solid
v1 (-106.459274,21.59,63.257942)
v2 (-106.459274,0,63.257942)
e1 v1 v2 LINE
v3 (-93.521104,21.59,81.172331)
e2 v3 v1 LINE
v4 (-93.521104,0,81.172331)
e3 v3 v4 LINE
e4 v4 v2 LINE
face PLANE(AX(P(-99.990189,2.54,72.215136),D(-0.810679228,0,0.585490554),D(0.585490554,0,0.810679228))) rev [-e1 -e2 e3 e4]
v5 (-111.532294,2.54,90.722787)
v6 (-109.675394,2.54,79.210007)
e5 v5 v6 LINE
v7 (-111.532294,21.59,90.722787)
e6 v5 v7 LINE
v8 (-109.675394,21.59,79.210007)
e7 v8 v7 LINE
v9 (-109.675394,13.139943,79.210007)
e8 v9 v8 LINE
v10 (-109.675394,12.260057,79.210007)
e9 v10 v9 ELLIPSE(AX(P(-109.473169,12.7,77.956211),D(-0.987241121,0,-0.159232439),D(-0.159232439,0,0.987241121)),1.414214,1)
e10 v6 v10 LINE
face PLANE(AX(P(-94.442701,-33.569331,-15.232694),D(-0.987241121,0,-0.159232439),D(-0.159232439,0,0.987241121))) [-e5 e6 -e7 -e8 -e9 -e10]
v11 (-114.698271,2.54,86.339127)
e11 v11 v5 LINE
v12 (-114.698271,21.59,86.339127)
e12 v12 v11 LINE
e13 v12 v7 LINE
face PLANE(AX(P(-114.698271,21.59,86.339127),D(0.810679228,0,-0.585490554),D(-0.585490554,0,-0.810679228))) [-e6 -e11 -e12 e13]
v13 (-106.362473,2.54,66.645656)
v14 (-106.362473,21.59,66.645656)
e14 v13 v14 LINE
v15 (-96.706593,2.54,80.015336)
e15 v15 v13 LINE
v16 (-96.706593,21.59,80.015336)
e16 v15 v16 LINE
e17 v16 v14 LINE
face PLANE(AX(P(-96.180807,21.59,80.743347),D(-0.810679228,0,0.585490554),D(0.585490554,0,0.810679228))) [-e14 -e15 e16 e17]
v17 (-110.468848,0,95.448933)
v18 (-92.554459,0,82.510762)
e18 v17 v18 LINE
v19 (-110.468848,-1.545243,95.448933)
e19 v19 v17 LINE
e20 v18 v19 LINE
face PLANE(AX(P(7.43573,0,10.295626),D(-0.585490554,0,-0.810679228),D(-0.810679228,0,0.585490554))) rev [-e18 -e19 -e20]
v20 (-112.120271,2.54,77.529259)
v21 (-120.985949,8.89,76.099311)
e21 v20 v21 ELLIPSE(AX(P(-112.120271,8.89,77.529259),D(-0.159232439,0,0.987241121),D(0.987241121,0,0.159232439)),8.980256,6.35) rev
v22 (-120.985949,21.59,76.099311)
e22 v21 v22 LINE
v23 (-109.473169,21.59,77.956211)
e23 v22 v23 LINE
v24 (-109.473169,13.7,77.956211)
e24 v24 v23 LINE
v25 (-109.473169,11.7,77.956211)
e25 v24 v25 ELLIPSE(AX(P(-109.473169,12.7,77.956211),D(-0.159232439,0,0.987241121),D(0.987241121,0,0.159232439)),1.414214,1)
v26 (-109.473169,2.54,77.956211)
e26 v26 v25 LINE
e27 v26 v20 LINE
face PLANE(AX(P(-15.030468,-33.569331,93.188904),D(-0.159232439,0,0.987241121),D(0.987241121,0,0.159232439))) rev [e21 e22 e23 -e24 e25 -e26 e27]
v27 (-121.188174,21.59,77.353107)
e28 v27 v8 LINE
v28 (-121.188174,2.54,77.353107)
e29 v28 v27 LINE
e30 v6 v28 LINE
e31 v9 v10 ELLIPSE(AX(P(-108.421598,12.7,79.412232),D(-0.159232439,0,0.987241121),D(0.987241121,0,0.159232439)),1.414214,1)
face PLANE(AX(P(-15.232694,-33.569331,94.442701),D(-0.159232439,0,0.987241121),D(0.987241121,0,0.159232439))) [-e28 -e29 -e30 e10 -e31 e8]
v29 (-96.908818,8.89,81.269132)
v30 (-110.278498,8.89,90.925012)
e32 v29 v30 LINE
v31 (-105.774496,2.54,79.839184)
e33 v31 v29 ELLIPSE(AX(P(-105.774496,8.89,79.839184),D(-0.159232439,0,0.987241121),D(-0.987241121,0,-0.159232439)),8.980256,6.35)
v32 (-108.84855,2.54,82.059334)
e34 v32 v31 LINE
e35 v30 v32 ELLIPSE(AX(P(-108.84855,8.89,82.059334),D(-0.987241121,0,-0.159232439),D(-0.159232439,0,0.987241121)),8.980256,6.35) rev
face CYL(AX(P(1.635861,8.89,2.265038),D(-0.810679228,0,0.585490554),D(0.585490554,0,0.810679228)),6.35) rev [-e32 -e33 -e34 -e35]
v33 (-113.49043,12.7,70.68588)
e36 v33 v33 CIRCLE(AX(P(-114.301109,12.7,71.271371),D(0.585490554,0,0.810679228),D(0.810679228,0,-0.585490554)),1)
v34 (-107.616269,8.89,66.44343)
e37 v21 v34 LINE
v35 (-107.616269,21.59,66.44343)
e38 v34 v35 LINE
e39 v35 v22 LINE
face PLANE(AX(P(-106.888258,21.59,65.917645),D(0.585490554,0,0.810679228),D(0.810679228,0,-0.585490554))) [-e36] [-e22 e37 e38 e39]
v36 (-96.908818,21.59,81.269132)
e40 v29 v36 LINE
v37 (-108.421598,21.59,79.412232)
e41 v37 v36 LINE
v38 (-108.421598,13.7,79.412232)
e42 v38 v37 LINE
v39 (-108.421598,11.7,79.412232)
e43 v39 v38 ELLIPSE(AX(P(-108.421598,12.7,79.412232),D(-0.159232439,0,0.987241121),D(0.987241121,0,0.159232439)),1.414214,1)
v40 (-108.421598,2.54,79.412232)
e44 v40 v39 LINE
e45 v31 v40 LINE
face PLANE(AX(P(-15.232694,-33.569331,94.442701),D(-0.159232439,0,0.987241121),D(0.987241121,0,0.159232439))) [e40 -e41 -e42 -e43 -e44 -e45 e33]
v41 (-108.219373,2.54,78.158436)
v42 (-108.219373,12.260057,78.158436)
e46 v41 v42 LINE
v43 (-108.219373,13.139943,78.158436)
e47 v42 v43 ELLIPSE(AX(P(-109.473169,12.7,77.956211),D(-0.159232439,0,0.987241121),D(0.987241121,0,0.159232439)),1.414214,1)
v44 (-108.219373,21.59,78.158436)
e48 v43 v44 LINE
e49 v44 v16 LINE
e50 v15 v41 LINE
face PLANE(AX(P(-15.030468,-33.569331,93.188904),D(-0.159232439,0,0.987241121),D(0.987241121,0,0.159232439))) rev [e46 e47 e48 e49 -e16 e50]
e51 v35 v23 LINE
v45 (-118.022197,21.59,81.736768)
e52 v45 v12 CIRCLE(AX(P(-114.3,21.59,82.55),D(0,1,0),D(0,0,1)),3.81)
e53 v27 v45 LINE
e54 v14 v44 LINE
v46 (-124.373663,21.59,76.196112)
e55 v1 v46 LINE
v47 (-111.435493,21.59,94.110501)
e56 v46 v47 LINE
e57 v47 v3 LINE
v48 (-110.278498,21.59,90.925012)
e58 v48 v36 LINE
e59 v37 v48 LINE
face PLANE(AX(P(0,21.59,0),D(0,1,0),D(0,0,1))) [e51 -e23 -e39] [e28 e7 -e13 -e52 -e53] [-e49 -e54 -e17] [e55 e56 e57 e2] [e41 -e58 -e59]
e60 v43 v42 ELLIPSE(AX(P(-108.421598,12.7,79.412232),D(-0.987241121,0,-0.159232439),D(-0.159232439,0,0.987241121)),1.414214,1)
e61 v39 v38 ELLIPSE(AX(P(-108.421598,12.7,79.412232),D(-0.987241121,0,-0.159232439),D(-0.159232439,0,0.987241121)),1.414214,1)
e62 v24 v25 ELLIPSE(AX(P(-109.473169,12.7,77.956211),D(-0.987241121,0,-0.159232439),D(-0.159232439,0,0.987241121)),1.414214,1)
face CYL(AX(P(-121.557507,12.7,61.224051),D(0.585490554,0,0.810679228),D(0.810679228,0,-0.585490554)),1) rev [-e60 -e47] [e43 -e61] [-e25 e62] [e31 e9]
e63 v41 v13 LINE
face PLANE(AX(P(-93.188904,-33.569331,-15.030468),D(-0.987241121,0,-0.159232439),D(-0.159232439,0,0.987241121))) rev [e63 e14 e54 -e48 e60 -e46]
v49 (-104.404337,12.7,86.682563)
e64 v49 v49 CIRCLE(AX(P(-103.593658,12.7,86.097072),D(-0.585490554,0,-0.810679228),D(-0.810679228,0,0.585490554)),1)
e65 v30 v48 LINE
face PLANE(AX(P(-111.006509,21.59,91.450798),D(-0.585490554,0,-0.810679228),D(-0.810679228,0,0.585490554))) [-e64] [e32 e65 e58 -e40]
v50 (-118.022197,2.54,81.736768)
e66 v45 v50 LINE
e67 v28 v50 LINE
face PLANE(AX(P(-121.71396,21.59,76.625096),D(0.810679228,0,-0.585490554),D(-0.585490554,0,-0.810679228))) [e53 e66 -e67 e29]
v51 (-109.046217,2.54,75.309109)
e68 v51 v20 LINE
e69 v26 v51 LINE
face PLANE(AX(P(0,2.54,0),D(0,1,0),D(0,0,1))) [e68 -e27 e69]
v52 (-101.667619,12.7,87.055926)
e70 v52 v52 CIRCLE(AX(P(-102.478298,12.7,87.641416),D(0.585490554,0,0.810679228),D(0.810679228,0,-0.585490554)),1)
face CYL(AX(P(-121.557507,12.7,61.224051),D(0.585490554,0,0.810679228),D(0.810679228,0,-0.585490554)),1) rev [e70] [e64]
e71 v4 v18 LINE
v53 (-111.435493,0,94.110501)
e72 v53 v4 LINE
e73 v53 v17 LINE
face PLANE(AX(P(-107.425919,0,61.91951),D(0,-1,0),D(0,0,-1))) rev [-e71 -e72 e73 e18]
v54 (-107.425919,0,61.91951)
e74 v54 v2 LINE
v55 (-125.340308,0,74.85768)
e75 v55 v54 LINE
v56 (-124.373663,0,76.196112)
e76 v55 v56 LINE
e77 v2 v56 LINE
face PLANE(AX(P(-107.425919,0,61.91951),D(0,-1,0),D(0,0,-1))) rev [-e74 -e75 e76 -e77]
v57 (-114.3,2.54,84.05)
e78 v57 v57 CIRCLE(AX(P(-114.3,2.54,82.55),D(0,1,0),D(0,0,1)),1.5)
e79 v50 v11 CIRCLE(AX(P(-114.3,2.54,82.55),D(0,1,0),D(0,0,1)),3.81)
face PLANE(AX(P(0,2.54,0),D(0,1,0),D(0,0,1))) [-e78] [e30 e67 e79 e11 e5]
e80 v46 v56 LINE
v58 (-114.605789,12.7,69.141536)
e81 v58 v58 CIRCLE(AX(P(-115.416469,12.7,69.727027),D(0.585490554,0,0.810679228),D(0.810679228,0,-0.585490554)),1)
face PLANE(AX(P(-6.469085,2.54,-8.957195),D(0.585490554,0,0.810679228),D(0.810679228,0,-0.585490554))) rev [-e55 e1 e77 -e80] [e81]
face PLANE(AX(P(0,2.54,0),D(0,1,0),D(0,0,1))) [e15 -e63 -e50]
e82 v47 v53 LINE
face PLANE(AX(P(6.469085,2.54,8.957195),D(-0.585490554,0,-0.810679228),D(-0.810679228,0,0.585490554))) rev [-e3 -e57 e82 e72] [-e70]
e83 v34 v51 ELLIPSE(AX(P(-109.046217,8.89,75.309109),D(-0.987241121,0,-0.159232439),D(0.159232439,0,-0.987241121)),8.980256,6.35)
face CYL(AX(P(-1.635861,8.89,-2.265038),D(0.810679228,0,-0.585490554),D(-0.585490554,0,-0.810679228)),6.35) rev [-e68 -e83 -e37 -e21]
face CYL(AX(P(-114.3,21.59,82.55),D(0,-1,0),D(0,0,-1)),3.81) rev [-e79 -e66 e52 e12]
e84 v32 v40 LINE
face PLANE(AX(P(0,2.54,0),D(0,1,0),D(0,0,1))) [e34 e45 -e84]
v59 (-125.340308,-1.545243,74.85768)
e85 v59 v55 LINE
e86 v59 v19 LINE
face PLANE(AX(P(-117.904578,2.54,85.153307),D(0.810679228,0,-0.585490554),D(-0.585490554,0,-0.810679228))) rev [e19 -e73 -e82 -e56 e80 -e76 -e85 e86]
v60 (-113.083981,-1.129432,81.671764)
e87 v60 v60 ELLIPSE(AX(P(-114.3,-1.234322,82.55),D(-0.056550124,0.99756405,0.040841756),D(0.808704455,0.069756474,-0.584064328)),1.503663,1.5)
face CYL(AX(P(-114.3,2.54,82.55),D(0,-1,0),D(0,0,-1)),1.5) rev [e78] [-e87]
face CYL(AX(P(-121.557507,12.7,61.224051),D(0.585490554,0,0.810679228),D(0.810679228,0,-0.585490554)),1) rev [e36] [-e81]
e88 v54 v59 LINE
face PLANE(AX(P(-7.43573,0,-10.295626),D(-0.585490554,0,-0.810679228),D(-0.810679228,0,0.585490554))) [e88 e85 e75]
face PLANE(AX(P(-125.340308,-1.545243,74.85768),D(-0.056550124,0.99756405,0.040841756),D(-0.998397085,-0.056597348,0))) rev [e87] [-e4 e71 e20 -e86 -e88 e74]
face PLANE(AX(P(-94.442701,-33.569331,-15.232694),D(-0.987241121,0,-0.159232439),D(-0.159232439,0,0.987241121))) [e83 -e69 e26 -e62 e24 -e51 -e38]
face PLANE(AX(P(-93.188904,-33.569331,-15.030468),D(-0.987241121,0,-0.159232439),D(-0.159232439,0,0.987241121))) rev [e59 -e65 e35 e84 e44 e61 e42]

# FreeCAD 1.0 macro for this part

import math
import FreeCAD as App
import Part
import Sketcher
Q = App.Units.Quantity


def edges_at(feature, points):
    """Names of the edges that pass closest to the given points."""
    edges = feature.Shape.Edges
    near = lambda p: min(range(len(edges)), key=lambda i: edges[i].distToShape(Part.Vertex(*p))[0])
    return sorted({f"Edge{near(p) + 1}" for p in points})

doc = App.newDocument("Part")
body = doc.addObject("PartDesign::Body", "Body")

# Sketch on XZ plane
sketch1 = body.newObject("Sketcher::SketchObject", "Sketch")
sketch1.AttachmentSupport = (doc.getObject("XZ_Plane"), [""])
sketch1.MapMode = "FlatFace"
sketch1.addGeometry(Part.LineSegment(App.Vector(-93.5, 81.2, 0), App.Vector(-106.5, 63.3, 0)), False)
sketch1.addGeometry(Part.LineSegment(App.Vector(-106.5, 63.3, 0), App.Vector(-124.4, 76.2, 0)), False)
sketch1.addGeometry(Part.LineSegment(App.Vector(-124.4, 76.2, 0), App.Vector(-111.4, 94.1, 0)), False)
sketch1.addGeometry(Part.LineSegment(App.Vector(-111.4, 94.1, 0), App.Vector(-93.5, 81.2, 0)), False)
sketch1.addGeometry(Part.Circle(App.Vector(-114.3, 82.5, 0), App.Vector(0, 0, 1), 1.5), False)
sketch1.addConstraint(Sketcher.Constraint("Coincident", 0, 2, 1, 1))
sketch1.addConstraint(Sketcher.Constraint("Coincident", 1, 2, 2, 1))
sketch1.addConstraint(Sketcher.Constraint("Coincident", 2, 2, 3, 1))
sketch1.addConstraint(Sketcher.Constraint("Coincident", 3, 2, 0, 1))
sketch1.addConstraint(Sketcher.Constraint("Perpendicular", 0, 1))
sketch1.addConstraint(Sketcher.Constraint("Perpendicular", 1, 2))
sketch1.addConstraint(Sketcher.Constraint("Perpendicular", 2, 3))
sketch1.addConstraint(Sketcher.Constraint("Equal", 0, 1))
sketch1.addConstraint(Sketcher.Constraint("DistanceX", 4, 3, -1, 1, Q("4.5 in")))
sketch1.addConstraint(Sketcher.Constraint("Distance", 0, Q("0.87 in")))
sketch1.addConstraint(Sketcher.Constraint("Diameter", 4, 3.0))
sketch1.addConstraint(Sketcher.Constraint("DistanceY", -1, 1, 4, 3, Q("3.25 in")))
sketch1.addConstraint(Sketcher.Constraint("DistanceY", -1, 1, 2, 2, 94.110501))
sketch1.addConstraint(Sketcher.Constraint("DistanceY", -1, 1, 0, 2, 63.257942))
sketch1.addConstraint(Sketcher.Constraint("DistanceX", 0, 2, -1, 1, 106.459274))
pad1 = body.newObject("PartDesign::Pad", "Pad")
pad1.Profile = sketch1
pad1.Length = Q("0.1 in")
pad1.Reversed = True

# Sketch on XZ plane
sketch2 = body.newObject("Sketcher::SketchObject", "Sketch001")
sketch2.AttachmentSupport = (doc.getObject("XZ_Plane"), [""])
sketch2.MapMode = "FlatFace"
sketch2.AttachmentOffset = App.Placement(App.Vector(0, 0, -0.1 * 25.4), App.Rotation())
sketch2.addGeometry(Part.LineSegment(App.Vector(-106.5, 63.3, 0), App.Vector(-124.4, 76.2, 0)), False)
sketch2.addGeometry(Part.LineSegment(App.Vector(-124.4, 76.2, 0), App.Vector(-111.4, 94.1, 0)), False)
sketch2.addGeometry(Part.LineSegment(App.Vector(-111.4, 94.1, 0), App.Vector(-93.5, 81.2, 0)), False)
sketch2.addGeometry(Part.LineSegment(App.Vector(-93.5, 81.2, 0), App.Vector(-106.5, 63.3, 0)), False)
sketch2.addGeometry(Part.LineSegment(App.Vector(-121.7, 76.6, 0), App.Vector(-106.9, 65.9, 0)), False)
sketch2.addGeometry(Part.LineSegment(App.Vector(-106.9, 65.9, 0), App.Vector(-96.2, 80.7, 0)), False)
sketch2.addGeometry(Part.LineSegment(App.Vector(-96.2, 80.7, 0), App.Vector(-111, 91.5, 0)), False)
sketch2.addGeometry(Part.LineSegment(App.Vector(-111, 91.5, 0), App.Vector(-114.7, 86.3, 0)), False)
sketch2.addGeometry(Part.ArcOfCircle(Part.Circle(App.Vector(-114.3, 82.5, 0), App.Vector(0, 0, 1), 3.8), math.radians(96), math.radians(192)), False)
sketch2.addGeometry(Part.LineSegment(App.Vector(-118, 81.7, 0), App.Vector(-121.7, 76.6, 0)), False)
sketch2.addConstraint(Sketcher.Constraint("Coincident", 0, 2, 1, 1))
sketch2.addConstraint(Sketcher.Constraint("Coincident", 1, 2, 2, 1))
sketch2.addConstraint(Sketcher.Constraint("Coincident", 2, 2, 3, 1))
sketch2.addConstraint(Sketcher.Constraint("Coincident", 3, 2, 0, 1))
sketch2.addConstraint(Sketcher.Constraint("Coincident", 4, 2, 5, 1))
sketch2.addConstraint(Sketcher.Constraint("Coincident", 5, 2, 6, 1))
sketch2.addConstraint(Sketcher.Constraint("Coincident", 6, 2, 7, 1))
sketch2.addConstraint(Sketcher.Constraint("Coincident", 7, 2, 8, 1))
sketch2.addConstraint(Sketcher.Constraint("Coincident", 8, 2, 9, 1))
sketch2.addConstraint(Sketcher.Constraint("Coincident", 9, 2, 4, 1))
sketch2.addConstraint(Sketcher.Constraint("Perpendicular", 0, 1))
sketch2.addConstraint(Sketcher.Constraint("Perpendicular", 1, 2))
sketch2.addConstraint(Sketcher.Constraint("Perpendicular", 2, 3))
sketch2.addConstraint(Sketcher.Constraint("Perpendicular", 3, 4))
sketch2.addConstraint(Sketcher.Constraint("Perpendicular", 4, 5))
sketch2.addConstraint(Sketcher.Constraint("Perpendicular", 5, 6))
sketch2.addConstraint(Sketcher.Constraint("Perpendicular", 6, 7))
sketch2.addConstraint(Sketcher.Constraint("Parallel", 7, 9))
sketch2.addConstraint(Sketcher.Constraint("Equal", 0, 1))
sketch2.addConstraint(Sketcher.Constraint("Equal", 4, 5))
sketch2.addConstraint(Sketcher.Constraint("Equal", 5, 6))
sketch2.addConstraint(Sketcher.Constraint("Equal", 7, 9))
sketch2.addConstraint(Sketcher.Constraint("Radius", 8, Q("0.15 in")))
sketch2.addConstraint(Sketcher.Constraint("DistanceX", 8, 3, -1, 1, Q("4.5 in")))
sketch2.addConstraint(Sketcher.Constraint("Distance", 0, Q("0.87 in")))
sketch2.addConstraint(Sketcher.Constraint("Distance", 4, Q("0.72 in")))
sketch2.addConstraint(Sketcher.Constraint("DistanceY", -1, 1, 8, 3, Q("3.25 in")))
sketch2.addConstraint(Sketcher.Constraint("DistanceY", -1, 1, 1, 2, 94.110501))
sketch2.addConstraint(Sketcher.Constraint("DistanceY", 4, 2, 5, 2, 14.825702))
sketch2.addConstraint(Sketcher.Constraint("DistanceX", 4, 2, -1, 1, 106.888258))
sketch2.addConstraint(Sketcher.Constraint("DistanceX", 7, 2, 1, 2, 3.262778))
pad2 = body.newObject("PartDesign::Pad", "Pad001")
pad2.Profile = sketch2
pad2.Length = Q("0.75 in")
pad2.Reversed = True

# Sketch on XZ plane
sketch3 = body.newObject("Sketcher::SketchObject", "Sketch002")
sketch3.AttachmentSupport = (doc.getObject("XZ_Plane"), [""])
sketch3.MapMode = "FlatFace"
sketch3.AttachmentOffset = App.Placement(App.Vector(0, 0, -0.85 * 25.4), App.Rotation())
sketch3.addGeometry(Part.LineSegment(App.Vector(-121.7, 76.6, 0), App.Vector(-121.2, 77.4, 0)), False)
sketch3.addGeometry(Part.LineSegment(App.Vector(-121.2, 77.4, 0), App.Vector(-109.7, 79.2, 0)), False)
sketch3.addGeometry(Part.LineSegment(App.Vector(-109.7, 79.2, 0), App.Vector(-111.5, 90.7, 0)), False)
sketch3.addGeometry(Part.LineSegment(App.Vector(-111.5, 90.7, 0), App.Vector(-111, 91.5, 0)), False)
sketch3.addGeometry(Part.LineSegment(App.Vector(-111, 91.5, 0), App.Vector(-110.3, 90.9, 0)), False)
sketch3.addGeometry(Part.LineSegment(App.Vector(-110.3, 90.9, 0), App.Vector(-108.4, 79.4, 0)), False)
sketch3.addGeometry(Part.LineSegment(App.Vector(-108.4, 79.4, 0), App.Vector(-96.9, 81.3, 0)), False)
sketch3.addGeometry(Part.LineSegment(App.Vector(-96.9, 81.3, 0), App.Vector(-96.2, 80.7, 0)), False)
sketch3.addGeometry(Part.LineSegment(App.Vector(-96.2, 80.7, 0), App.Vector(-96.7, 80, 0)), False)
sketch3.addGeometry(Part.LineSegment(App.Vector(-96.7, 80, 0), App.Vector(-108.2, 78.2, 0)), False)
sketch3.addGeometry(Part.LineSegment(App.Vector(-108.2, 78.2, 0), App.Vector(-106.4, 66.6, 0)), False)
sketch3.addGeometry(Part.LineSegment(App.Vector(-106.4, 66.6, 0), App.Vector(-106.9, 65.9, 0)), False)
sketch3.addGeometry(Part.LineSegment(App.Vector(-106.9, 65.9, 0), App.Vector(-107.6, 66.4, 0)), False)
sketch3.addGeometry(Part.LineSegment(App.Vector(-107.6, 66.4, 0), App.Vector(-109.5, 78, 0)), False)
sketch3.addGeometry(Part.LineSegment(App.Vector(-109.5, 78, 0), App.Vector(-121, 76.1, 0)), False)
sketch3.addGeometry(Part.LineSegment(App.Vector(-121, 76.1, 0), App.Vector(-121.7, 76.6, 0)), False)
sketch3.addConstraint(Sketcher.Constraint("Coincident", 0, 2, 1, 1))
sketch3.addConstraint(Sketcher.Constraint("Coincident", 1, 2, 2, 1))
sketch3.addConstraint(Sketcher.Constraint("Coincident", 2, 2, 3, 1))
sketch3.addConstraint(Sketcher.Constraint("Coincident", 3, 2, 4, 1))
sketch3.addConstraint(Sketcher.Constraint("Coincident", 4, 2, 5, 1))
sketch3.addConstraint(Sketcher.Constraint("Coincident", 5, 2, 6, 1))
sketch3.addConstraint(Sketcher.Constraint("Coincident", 6, 2, 7, 1))
sketch3.addConstraint(Sketcher.Constraint("Coincident", 7, 2, 8, 1))
sketch3.addConstraint(Sketcher.Constraint("Coincident", 8, 2, 9, 1))
sketch3.addConstraint(Sketcher.Constraint("Coincident", 9, 2, 10, 1))
sketch3.addConstraint(Sketcher.Constraint("Coincident", 10, 2, 11, 1))
sketch3.addConstraint(Sketcher.Constraint("Coincident", 11, 2, 12, 1))
sketch3.addConstraint(Sketcher.Constraint("Coincident", 12, 2, 13, 1))
sketch3.addConstraint(Sketcher.Constraint("Coincident", 13, 2, 14, 1))
sketch3.addConstraint(Sketcher.Constraint("Coincident", 14, 2, 15, 1))
sketch3.addConstraint(Sketcher.Constraint("Coincident", 15, 2, 0, 1))
sketch3.addConstraint(Sketcher.Constraint("Perpendicular", 1, 2))
sketch3.addConstraint(Sketcher.Constraint("Parallel", 0, 3))
sketch3.addConstraint(Sketcher.Constraint("Perpendicular", 3, 4))
sketch3.addConstraint(Sketcher.Constraint("Parallel", 2, 5))
sketch3.addConstraint(Sketcher.Constraint("Perpendicular", 5, 6))
sketch3.addConstraint(Sketcher.Constraint("Parallel", 4, 7))
sketch3.addConstraint(Sketcher.Constraint("Perpendicular", 7, 8))
sketch3.addConstraint(Sketcher.Constraint("Parallel", 6, 9))
sketch3.addConstraint(Sketcher.Constraint("Perpendicular", 9, 10))
sketch3.addConstraint(Sketcher.Constraint("Parallel", 8, 11))
sketch3.addConstraint(Sketcher.Constraint("Perpendicular", 11, 12))
sketch3.addConstraint(Sketcher.Constraint("Parallel", 10, 13))
sketch3.addConstraint(Sketcher.Constraint("Perpendicular", 13, 14))
sketch3.addConstraint(Sketcher.Constraint("Parallel", 12, 15))
sketch3.addConstraint(Sketcher.Constraint("Equal", 1, 2))
sketch3.addConstraint(Sketcher.Constraint("Equal", 0, 3))
sketch3.addConstraint(Sketcher.Constraint("Equal", 3, 4))
sketch3.addConstraint(Sketcher.Constraint("Equal", 2, 5))
sketch3.addConstraint(Sketcher.Constraint("Equal", 5, 6))
sketch3.addConstraint(Sketcher.Constraint("Equal", 4, 7))
sketch3.addConstraint(Sketcher.Constraint("Equal", 7, 8))
sketch3.addConstraint(Sketcher.Constraint("Equal", 6, 9))
sketch3.addConstraint(Sketcher.Constraint("Equal", 9, 10))
sketch3.addConstraint(Sketcher.Constraint("Equal", 8, 11))
sketch3.addConstraint(Sketcher.Constraint("Equal", 11, 12))
sketch3.addConstraint(Sketcher.Constraint("Equal", 10, 13))
sketch3.addConstraint(Sketcher.Constraint("DistanceX", 4, 2, -1, 1, 110.278498))
sketch3.addConstraint(Sketcher.Constraint("DistanceX", 5, 2, -1, 1, 108.421598))
sketch3.addConstraint(Sketcher.Constraint("DistanceX", 3, 2, 7, 2, 14.825702))
sketch3.addConstraint(Sketcher.Constraint("Distance", 1, 11.661569))
sketch3.addConstraint(Sketcher.Constraint("DistanceX", 11, 2, -1, 1, 106.888258))
sketch3.addConstraint(Sketcher.Constraint("DistanceY", -1, 1, 12, 2, 66.44343))
pad3 = body.newObject("PartDesign::Pad", "Pad002")
pad3.Profile = sketch3
pad3.Length = Q("0.75 in")

# Sketch on an angled plane
sketch4 = body.newObject("Sketcher::SketchObject", "Sketch003")
sketch4.Placement = App.Placement(App.Vector(6.469085, 0, 8.957195), App.Rotation(App.Vector(0.810679228, 0, -0.585490554), App.Vector(0, 1, 0), App.Vector(0.585490554, 0, 0.810679228), "ZXY"))
sketch4.addGeometry(Part.Circle(App.Vector(-134.4, 12.7, 0), App.Vector(0, 0, 1), 1), False)
sketch4.addConstraint(Sketcher.Constraint("DistanceY", -1, 1, 0, 3, Q("0.5 in")))
sketch4.addConstraint(Sketcher.Constraint("Diameter", 0, 2.0))
sketch4.addConstraint(Sketcher.Constraint("DistanceX", 0, 3, -1, 1, 134.390249))
pocket1 = body.newObject("PartDesign::Pocket", "Pocket")
pocket1.Profile = sketch4
pocket1.Type = "ThroughAll"
doc.recompute()

fillet = body.newObject("PartDesign::Fillet", "Fillet")
fillet.Base = (pocket1, edges_at(pocket1, [(-103.594, 2.54, 86.097), (-114.301, 2.54, 71.271)]))
fillet.Radius = Q("0.25 in")

# Sketch on an angled plane
sketch5 = body.newObject("Sketcher::SketchObject", "Sketch004")
sketch5.Placement = App.Placement(App.Vector(0, 0, 0), App.Rotation(App.Vector(-0.810679228, 0, 0.585490554), App.Vector(0, 1, 0), App.Vector(-0.585490554, 0, -0.810679228), "ZXY"))
sketch5.addGeometry(Part.LineSegment(App.Vector(145.4, 0, 0), App.Vector(123.3, 0, 0)), False)
sketch5.addGeometry(Part.LineSegment(App.Vector(123.3, 0, 0), App.Vector(145.4, -1.5, 0)), False)
sketch5.addGeometry(Part.LineSegment(App.Vector(145.4, -1.5, 0), App.Vector(145.4, 0, 0)), False)
sketch5.addConstraint(Sketcher.Constraint("Coincident", 0, 2, 1, 1))
sketch5.addConstraint(Sketcher.Constraint("Coincident", 1, 2, 2, 1))
sketch5.addConstraint(Sketcher.Constraint("Coincident", 2, 2, 0, 1))
sketch5.addConstraint(Sketcher.Constraint("Horizontal", 0))
sketch5.addConstraint(Sketcher.Constraint("Vertical", 2))
sketch5.addConstraint(Sketcher.Constraint("PointOnObject", 0, 2, -1))
sketch5.addConstraint(Sketcher.Constraint("Angle", 1, Q("-4 deg")))
sketch5.addConstraint(Sketcher.Constraint("DistanceX", 0, 2, 0, 1, Q("0.87 in")))
sketch5.addConstraint(Sketcher.Constraint("DistanceX", -1, 1, 0, 2, 123.341249))
pad4 = body.newObject("PartDesign::Pad", "Pad003")
pad4.Profile = sketch5
pad4.Length = Q("1 in")
pad4.Midplane = True

# Sketch on XZ plane
sketch6 = body.newObject("Sketcher::SketchObject", "Sketch005")
sketch6.AttachmentSupport = (doc.getObject("XZ_Plane"), [""])
sketch6.MapMode = "FlatFace"
sketch6.AttachmentOffset = App.Placement(App.Vector(0, 0, -0.1 * 25.4), App.Rotation())
sketch6.addGeometry(Part.Circle(App.Vector(-114.3, 82.5, 0), App.Vector(0, 0, 1), 1.5), False)
sketch6.addConstraint(Sketcher.Constraint("DistanceX", 0, 3, -1, 1, Q("4.5 in")))
sketch6.addConstraint(Sketcher.Constraint("Diameter", 0, 3.0))
sketch6.addConstraint(Sketcher.Constraint("DistanceY", -1, 1, 0, 3, Q("3.25 in")))
pocket2 = body.newObject("PartDesign::Pocket", "Pocket001")
pocket2.Profile = sketch6
pocket2.Type = "ThroughAll"
pocket2.Reversed = True

doc.recompute()
